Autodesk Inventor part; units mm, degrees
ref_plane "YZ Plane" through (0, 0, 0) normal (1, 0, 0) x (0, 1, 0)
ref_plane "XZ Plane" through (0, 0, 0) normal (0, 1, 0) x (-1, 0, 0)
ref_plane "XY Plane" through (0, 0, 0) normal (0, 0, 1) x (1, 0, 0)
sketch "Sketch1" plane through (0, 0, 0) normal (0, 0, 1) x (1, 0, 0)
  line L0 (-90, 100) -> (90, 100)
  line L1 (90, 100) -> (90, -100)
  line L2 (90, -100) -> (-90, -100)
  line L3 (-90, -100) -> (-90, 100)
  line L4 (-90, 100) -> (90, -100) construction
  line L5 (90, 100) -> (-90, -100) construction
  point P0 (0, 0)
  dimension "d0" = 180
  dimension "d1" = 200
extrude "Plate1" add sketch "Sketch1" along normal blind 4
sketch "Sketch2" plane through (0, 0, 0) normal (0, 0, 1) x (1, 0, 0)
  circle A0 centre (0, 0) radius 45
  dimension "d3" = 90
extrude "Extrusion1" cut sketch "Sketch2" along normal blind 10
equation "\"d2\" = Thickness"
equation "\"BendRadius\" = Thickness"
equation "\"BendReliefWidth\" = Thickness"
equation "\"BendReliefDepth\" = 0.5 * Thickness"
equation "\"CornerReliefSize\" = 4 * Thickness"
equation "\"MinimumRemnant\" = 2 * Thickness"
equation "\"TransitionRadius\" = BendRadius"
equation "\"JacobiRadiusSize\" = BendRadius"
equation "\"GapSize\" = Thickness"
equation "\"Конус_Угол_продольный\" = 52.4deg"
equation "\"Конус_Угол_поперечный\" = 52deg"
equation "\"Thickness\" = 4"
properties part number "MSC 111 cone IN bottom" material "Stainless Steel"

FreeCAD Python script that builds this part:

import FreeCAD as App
import Part
import Sketcher

V = App.Vector
Q = App.Units.Quantity

doc = App.newDocument("Part")
params = doc.addObject("Spreadsheet::Sheet", "Params")
for row, (alias, value) in enumerate([
    ("sketch1_width", "180 mm"),
    ("sketch1_height", "200 mm"),
    ("pad1_length", "4 mm"),
    ("sketch2_diameter", "90 mm"),
    ("pocket1_length", "10 mm"),
], start=1):
    params.set(f"A{row}", alias)
    params.set(f"B{row}", "=" + value)
    params.setAlias(f"B{row}", alias)

body = doc.addObject("PartDesign::Body", "Body")

# Sketch on XY plane
sketch1 = body.newObject("Sketcher::SketchObject", "Sketch")
sketch1.AttachmentSupport = (doc.getObject("XY_Plane"), [""])
sketch1.MapMode = "FlatFace"
sketch1.addGeometry(Part.LineSegment(V(90, 100, 0), V(-90, 100, 0)), False)
sketch1.addGeometry(Part.LineSegment(V(-90, 100, 0), V(-90, -100, 0)), False)
sketch1.addGeometry(Part.LineSegment(V(-90, -100, 0), V(90, -100, 0)), False)
sketch1.addGeometry(Part.LineSegment(V(90, -100, 0), V(90, 100, 0)), False)
sketch1.addConstraint(Sketcher.Constraint("Coincident", 0, 2, 1, 1))
sketch1.addConstraint(Sketcher.Constraint("Coincident", 1, 2, 2, 1))
sketch1.addConstraint(Sketcher.Constraint("Coincident", 2, 2, 3, 1))
sketch1.addConstraint(Sketcher.Constraint("Coincident", 3, 2, 0, 1))
sketch1.addConstraint(Sketcher.Constraint("Horizontal", 0))
sketch1.addConstraint(Sketcher.Constraint("Vertical", 1))
sketch1.addConstraint(Sketcher.Constraint("Horizontal", 2))
sketch1.addConstraint(Sketcher.Constraint("Vertical", 3))
sketch1.addConstraint(Sketcher.Constraint("Symmetric", 0, 2, 2, 2, -1, 1))
sketch1.addConstraint(Sketcher.Constraint("DistanceX", 0, 2, 0, 1, Q("180 mm")))
sketch1.addConstraint(Sketcher.Constraint("DistanceY", 1, 2, 1, 1, Q("200 mm")))
sketch1.setExpression("Constraints[9]", "Params.sketch1_width")
sketch1.setExpression("Constraints[10]", "Params.sketch1_height")
pad1 = body.newObject("PartDesign::Pad", "Pad")
pad1.Profile = sketch1
pad1.setExpression("Length", "Params.pad1_length")

# Sketch on XY plane
sketch2 = body.newObject("Sketcher::SketchObject", "Sketch001")
sketch2.AttachmentSupport = (doc.getObject("XY_Plane"), [""])
sketch2.MapMode = "FlatFace"
sketch2.addGeometry(Part.Circle(V(0, 0, 0), V(0, 0, 1), 45), False)
sketch2.addConstraint(Sketcher.Constraint("Coincident", 0, 3, -1, 1))
sketch2.addConstraint(Sketcher.Constraint("Diameter", 0, Q("90 mm")))
sketch2.setExpression("Constraints[1]", "Params.sketch2_diameter")
pocket1 = body.newObject("PartDesign::Pocket", "Pocket")
pocket1.Profile = sketch2
pocket1.setExpression("Length", "Params.pocket1_length")
pocket1.Reversed = True

doc.recompute()
